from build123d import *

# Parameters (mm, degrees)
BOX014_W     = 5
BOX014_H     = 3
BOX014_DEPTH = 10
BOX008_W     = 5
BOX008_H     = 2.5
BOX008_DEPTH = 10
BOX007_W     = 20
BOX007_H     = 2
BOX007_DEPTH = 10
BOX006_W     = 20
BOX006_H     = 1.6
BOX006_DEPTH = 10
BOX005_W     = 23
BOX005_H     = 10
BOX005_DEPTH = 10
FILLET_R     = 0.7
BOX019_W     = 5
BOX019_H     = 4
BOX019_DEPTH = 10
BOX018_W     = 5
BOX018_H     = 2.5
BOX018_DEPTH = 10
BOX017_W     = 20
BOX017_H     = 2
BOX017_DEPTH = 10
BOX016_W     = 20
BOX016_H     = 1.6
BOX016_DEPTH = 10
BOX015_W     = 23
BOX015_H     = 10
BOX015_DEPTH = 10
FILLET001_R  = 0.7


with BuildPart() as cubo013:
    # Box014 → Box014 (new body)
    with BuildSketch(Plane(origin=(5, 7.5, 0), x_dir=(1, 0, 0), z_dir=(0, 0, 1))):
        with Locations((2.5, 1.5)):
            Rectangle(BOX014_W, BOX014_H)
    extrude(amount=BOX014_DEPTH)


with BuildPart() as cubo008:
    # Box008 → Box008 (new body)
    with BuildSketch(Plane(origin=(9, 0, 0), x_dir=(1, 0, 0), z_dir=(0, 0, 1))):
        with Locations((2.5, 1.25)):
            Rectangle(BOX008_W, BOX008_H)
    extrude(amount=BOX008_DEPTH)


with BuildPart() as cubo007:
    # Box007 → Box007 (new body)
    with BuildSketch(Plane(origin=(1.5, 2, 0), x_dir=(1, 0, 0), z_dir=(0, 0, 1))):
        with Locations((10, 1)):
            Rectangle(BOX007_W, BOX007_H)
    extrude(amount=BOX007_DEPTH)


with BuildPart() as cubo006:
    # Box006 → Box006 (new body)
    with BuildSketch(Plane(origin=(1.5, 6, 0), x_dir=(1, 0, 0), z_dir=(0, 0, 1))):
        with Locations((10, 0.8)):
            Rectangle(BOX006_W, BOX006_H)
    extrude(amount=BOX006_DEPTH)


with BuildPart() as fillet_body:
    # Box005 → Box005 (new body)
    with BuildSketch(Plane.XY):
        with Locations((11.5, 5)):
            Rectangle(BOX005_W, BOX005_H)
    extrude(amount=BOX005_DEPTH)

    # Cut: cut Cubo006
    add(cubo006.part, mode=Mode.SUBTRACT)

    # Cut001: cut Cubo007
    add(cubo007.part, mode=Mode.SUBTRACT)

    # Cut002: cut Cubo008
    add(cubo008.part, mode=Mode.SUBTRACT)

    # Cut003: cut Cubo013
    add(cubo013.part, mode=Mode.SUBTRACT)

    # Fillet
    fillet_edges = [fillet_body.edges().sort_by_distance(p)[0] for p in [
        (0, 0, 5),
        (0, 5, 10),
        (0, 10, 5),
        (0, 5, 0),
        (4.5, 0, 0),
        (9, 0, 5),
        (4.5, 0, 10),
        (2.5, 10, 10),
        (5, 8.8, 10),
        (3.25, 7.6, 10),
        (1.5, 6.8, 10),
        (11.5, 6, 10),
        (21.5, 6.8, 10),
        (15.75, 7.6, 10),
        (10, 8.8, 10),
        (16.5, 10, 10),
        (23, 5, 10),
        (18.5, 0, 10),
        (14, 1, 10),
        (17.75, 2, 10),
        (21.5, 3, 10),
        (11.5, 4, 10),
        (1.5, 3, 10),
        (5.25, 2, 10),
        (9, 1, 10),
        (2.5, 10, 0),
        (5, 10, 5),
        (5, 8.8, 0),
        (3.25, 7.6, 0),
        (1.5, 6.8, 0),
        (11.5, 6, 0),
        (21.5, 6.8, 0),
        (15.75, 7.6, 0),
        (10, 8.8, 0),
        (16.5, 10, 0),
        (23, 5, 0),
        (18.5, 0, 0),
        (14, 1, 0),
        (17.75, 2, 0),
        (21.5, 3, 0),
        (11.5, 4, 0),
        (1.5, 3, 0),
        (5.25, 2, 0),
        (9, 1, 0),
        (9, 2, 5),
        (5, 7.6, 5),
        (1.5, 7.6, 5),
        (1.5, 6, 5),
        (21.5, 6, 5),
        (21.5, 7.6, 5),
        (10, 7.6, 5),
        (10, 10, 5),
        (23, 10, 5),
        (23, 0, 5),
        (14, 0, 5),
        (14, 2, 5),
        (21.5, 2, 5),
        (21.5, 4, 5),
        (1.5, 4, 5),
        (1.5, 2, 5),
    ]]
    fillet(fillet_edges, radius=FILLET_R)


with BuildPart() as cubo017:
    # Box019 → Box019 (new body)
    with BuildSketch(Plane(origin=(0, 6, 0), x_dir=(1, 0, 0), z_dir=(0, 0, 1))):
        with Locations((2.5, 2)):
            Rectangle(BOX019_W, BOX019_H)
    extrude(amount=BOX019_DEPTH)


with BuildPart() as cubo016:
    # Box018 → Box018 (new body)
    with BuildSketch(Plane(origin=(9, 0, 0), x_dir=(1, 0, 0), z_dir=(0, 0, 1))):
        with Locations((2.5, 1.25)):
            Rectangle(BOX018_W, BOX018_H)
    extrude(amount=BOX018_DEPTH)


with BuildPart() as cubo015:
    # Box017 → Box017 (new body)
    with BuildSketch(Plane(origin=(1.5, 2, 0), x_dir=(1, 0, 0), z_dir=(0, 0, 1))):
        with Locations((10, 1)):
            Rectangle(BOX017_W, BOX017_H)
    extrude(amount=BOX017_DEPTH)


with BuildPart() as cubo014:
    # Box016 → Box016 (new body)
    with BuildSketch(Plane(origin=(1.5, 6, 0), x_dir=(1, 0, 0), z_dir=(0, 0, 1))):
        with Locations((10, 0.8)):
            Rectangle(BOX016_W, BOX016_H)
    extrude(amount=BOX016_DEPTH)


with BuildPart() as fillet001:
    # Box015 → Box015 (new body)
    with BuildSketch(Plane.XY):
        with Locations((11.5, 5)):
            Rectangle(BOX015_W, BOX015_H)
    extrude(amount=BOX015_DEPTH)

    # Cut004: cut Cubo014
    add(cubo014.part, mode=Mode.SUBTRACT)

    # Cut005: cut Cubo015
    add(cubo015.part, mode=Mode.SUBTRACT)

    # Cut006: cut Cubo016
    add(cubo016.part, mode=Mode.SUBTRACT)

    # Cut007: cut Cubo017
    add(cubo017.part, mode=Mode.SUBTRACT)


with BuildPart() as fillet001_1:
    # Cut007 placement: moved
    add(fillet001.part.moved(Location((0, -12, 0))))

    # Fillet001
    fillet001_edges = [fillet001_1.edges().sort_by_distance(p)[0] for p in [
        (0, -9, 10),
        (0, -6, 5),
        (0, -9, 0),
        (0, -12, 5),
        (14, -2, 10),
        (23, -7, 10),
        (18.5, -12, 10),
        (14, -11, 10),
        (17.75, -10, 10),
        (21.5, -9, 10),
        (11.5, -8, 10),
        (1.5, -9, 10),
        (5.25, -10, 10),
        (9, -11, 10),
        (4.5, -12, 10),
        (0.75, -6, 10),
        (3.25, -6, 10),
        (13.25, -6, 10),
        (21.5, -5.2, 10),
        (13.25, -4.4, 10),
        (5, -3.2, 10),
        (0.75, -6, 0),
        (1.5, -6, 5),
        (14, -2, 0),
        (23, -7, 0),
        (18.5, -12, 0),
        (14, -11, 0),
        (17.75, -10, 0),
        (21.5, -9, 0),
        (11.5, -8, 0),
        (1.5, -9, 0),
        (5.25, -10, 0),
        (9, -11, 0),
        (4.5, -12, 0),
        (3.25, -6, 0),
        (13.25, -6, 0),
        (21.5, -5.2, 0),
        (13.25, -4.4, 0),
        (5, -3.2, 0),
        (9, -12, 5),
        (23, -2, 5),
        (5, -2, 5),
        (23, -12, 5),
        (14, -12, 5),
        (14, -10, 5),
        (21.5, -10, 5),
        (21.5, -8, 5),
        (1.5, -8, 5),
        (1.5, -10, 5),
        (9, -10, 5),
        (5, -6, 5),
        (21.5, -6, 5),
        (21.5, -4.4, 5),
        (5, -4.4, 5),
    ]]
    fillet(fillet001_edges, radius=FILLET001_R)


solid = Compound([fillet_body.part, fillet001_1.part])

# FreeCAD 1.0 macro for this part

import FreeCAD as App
import Part
import Sketcher
from FreeCAD import Vector
Q = App.Units.Quantity


def add_polygon(sketch, points):
    """Adds a closed chain of lines whose ends are joined by coincident constraints."""
    first, n = sketch.GeometryCount, len(points)
    for a, b in zip(points, points[1:] + points[:1]):
        sketch.addGeometry(Part.LineSegment(App.Vector(*a, 0), App.Vector(*b, 0)), False)
    for i in range(n):
        sketch.addConstraint(Sketcher.Constraint("Coincident", first + i, 2, first + (i + 1) % n, 1))

doc = App.newDocument("Part")
body = doc.addObject("PartDesign::Body", "Body")

sketch1 = body.newObject("Sketcher::SketchObject", "Sketch")
sketch1.AttachmentSupport = (doc.getObject("XY_Plane"), [""])
sketch1.MapMode = "FlatFace"
add_polygon(sketch1, [(5, 10.5), (5, 7.5), (10, 7.5), (10, 10.5)])
sketch1.addConstraint(Sketcher.Constraint("Vertical", 0))
sketch1.addConstraint(Sketcher.Constraint("Horizontal", 1))
sketch1.addConstraint(Sketcher.Constraint("Vertical", 2))
sketch1.addConstraint(Sketcher.Constraint("Horizontal", 3))
sketch1.addConstraint(Sketcher.Constraint("DistanceX", 1, 1, 1, 2, Q("5 mm")))
sketch1.addConstraint(Sketcher.Constraint("DistanceY", 0, 2, 0, 1, Q("3 mm")))
sketch1.addConstraint(Sketcher.Constraint("DistanceX", -1, 1, 0, 2, Q("5 mm")))
sketch1.addConstraint(Sketcher.Constraint("DistanceY", -1, 1, 0, 2, Q("7.5 mm")))
pad1 = body.newObject("PartDesign::Pad", "Pad")
pad1.Profile = sketch1
pad1.Length = 10
body2 = doc.addObject("PartDesign::Body", "Body001")

sketch2 = body2.newObject("Sketcher::SketchObject", "Sketch001")
sketch2.AttachmentSupport = (doc.getObject("XY_Plane001"), [""])
sketch2.MapMode = "FlatFace"
add_polygon(sketch2, [(9, 2.5), (9, 0), (14, 0), (14, 2.5)])
sketch2.addConstraint(Sketcher.Constraint("Vertical", 0))
sketch2.addConstraint(Sketcher.Constraint("Horizontal", 1))
sketch2.addConstraint(Sketcher.Constraint("Vertical", 2))
sketch2.addConstraint(Sketcher.Constraint("Horizontal", 3))
sketch2.addConstraint(Sketcher.Constraint("PointOnObject", 0, 2, -1))
sketch2.addConstraint(Sketcher.Constraint("DistanceX", 1, 1, 1, 2, Q("5 mm")))
sketch2.addConstraint(Sketcher.Constraint("DistanceY", 0, 2, 0, 1, Q("2.5 mm")))
sketch2.addConstraint(Sketcher.Constraint("DistanceX", -1, 1, 0, 2, Q("9 mm")))
pad2 = body2.newObject("PartDesign::Pad", "Pad001")
pad2.Profile = sketch2
pad2.Length = 10
body3 = doc.addObject("PartDesign::Body", "Body002")

sketch3 = body3.newObject("Sketcher::SketchObject", "Sketch002")
sketch3.AttachmentSupport = (doc.getObject("XY_Plane002"), [""])
sketch3.MapMode = "FlatFace"
add_polygon(sketch3, [(1.5, 4), (1.5, 2), (21.5, 2), (21.5, 4)])
sketch3.addConstraint(Sketcher.Constraint("Vertical", 0))
sketch3.addConstraint(Sketcher.Constraint("Horizontal", 1))
sketch3.addConstraint(Sketcher.Constraint("Vertical", 2))
sketch3.addConstraint(Sketcher.Constraint("Horizontal", 3))
sketch3.addConstraint(Sketcher.Constraint("DistanceX", 1, 1, 1, 2, Q("20 mm")))
sketch3.addConstraint(Sketcher.Constraint("DistanceY", 0, 2, 0, 1, Q("2 mm")))
sketch3.addConstraint(Sketcher.Constraint("DistanceY", -1, 1, 0, 2, Q("2 mm")))
sketch3.addConstraint(Sketcher.Constraint("DistanceX", -1, 1, 0, 2, Q("1.5 mm")))
pad3 = body3.newObject("PartDesign::Pad", "Pad002")
pad3.Profile = sketch3
pad3.Length = 10
body4 = doc.addObject("PartDesign::Body", "Body003")

sketch4 = body4.newObject("Sketcher::SketchObject", "Sketch003")
sketch4.AttachmentSupport = (doc.getObject("XY_Plane003"), [""])
sketch4.MapMode = "FlatFace"
add_polygon(sketch4, [(1.5, 7.6), (1.5, 6), (21.5, 6), (21.5, 7.6)])
sketch4.addConstraint(Sketcher.Constraint("Vertical", 0))
sketch4.addConstraint(Sketcher.Constraint("Horizontal", 1))
sketch4.addConstraint(Sketcher.Constraint("Vertical", 2))
sketch4.addConstraint(Sketcher.Constraint("Horizontal", 3))
sketch4.addConstraint(Sketcher.Constraint("DistanceX", 1, 1, 1, 2, Q("20 mm")))
sketch4.addConstraint(Sketcher.Constraint("DistanceY", 0, 2, 0, 1, Q("1.6 mm")))
sketch4.addConstraint(Sketcher.Constraint("DistanceY", -1, 1, 0, 2, Q("6 mm")))
sketch4.addConstraint(Sketcher.Constraint("DistanceX", -1, 1, 0, 2, Q("1.5 mm")))
pad4 = body4.newObject("PartDesign::Pad", "Pad003")
pad4.Profile = sketch4
pad4.Length = 10
body5 = doc.addObject("PartDesign::Body", "Body004")

sketch5 = body5.newObject("Sketcher::SketchObject", "Sketch004")
sketch5.AttachmentSupport = (doc.getObject("XY_Plane004"), [""])
sketch5.MapMode = "FlatFace"
add_polygon(sketch5, [(0, 10), (0, 0), (23, 0), (23, 10)])
sketch5.addConstraint(Sketcher.Constraint("Vertical", 0))
sketch5.addConstraint(Sketcher.Constraint("Horizontal", 1))
sketch5.addConstraint(Sketcher.Constraint("Vertical", 2))
sketch5.addConstraint(Sketcher.Constraint("Horizontal", 3))
sketch5.addConstraint(Sketcher.Constraint("Coincident", 0, 2, -1, 1))
sketch5.addConstraint(Sketcher.Constraint("DistanceX", 1, 1, 1, 2, Q("23 mm")))
sketch5.addConstraint(Sketcher.Constraint("DistanceY", 0, 2, 0, 1, Q("10 mm")))
pad5 = body5.newObject("PartDesign::Pad", "Pad004")
pad5.Profile = sketch5
pad5.Length = 10
doc.recompute()

boolean = body5.newObject("PartDesign::Boolean", "Boolean")
boolean.Type = "Cut"
boolean.addObjects([body4])
doc.recompute()

boolean2 = body5.newObject("PartDesign::Boolean", "Boolean001")
boolean2.Type = "Cut"
boolean2.addObjects([body3])
doc.recompute()

boolean3 = body5.newObject("PartDesign::Boolean", "Boolean002")
boolean3.Type = "Cut"
boolean3.addObjects([body2])
doc.recompute()

boolean4 = body5.newObject("PartDesign::Boolean", "Boolean003")
boolean4.Type = "Cut"
boolean4.addObjects([body])
doc.recompute()

fillet = body5.newObject("PartDesign::Fillet", "Fillet")
fillet.Base = (boolean4, ["Edge1"])
fillet.UseAllEdges = True
fillet.Radius = 0.7
body6 = doc.addObject("PartDesign::Body", "Body005")

sketch6 = body6.newObject("Sketcher::SketchObject", "Sketch005")
sketch6.AttachmentSupport = (doc.getObject("XY_Plane005"), [""])
sketch6.MapMode = "FlatFace"
add_polygon(sketch6, [(0, 10), (0, 6), (5, 6), (5, 10)])
sketch6.addConstraint(Sketcher.Constraint("Vertical", 0))
sketch6.addConstraint(Sketcher.Constraint("Horizontal", 1))
sketch6.addConstraint(Sketcher.Constraint("Vertical", 2))
sketch6.addConstraint(Sketcher.Constraint("Horizontal", 3))
sketch6.addConstraint(Sketcher.Constraint("PointOnObject", 0, 2, -2))
sketch6.addConstraint(Sketcher.Constraint("DistanceX", 1, 1, 1, 2, Q("5 mm")))
sketch6.addConstraint(Sketcher.Constraint("DistanceY", 0, 2, 0, 1, Q("4 mm")))
sketch6.addConstraint(Sketcher.Constraint("DistanceY", -1, 1, 0, 2, Q("6 mm")))
pad6 = body6.newObject("PartDesign::Pad", "Pad005")
pad6.Profile = sketch6
pad6.Length = 10
body7 = doc.addObject("PartDesign::Body", "Body006")

sketch7 = body7.newObject("Sketcher::SketchObject", "Sketch006")
sketch7.AttachmentSupport = (doc.getObject("XY_Plane006"), [""])
sketch7.MapMode = "FlatFace"
add_polygon(sketch7, [(9, 2.5), (9, 0), (14, 0), (14, 2.5)])
sketch7.addConstraint(Sketcher.Constraint("Vertical", 0))
sketch7.addConstraint(Sketcher.Constraint("Horizontal", 1))
sketch7.addConstraint(Sketcher.Constraint("Vertical", 2))
sketch7.addConstraint(Sketcher.Constraint("Horizontal", 3))
sketch7.addConstraint(Sketcher.Constraint("PointOnObject", 0, 2, -1))
sketch7.addConstraint(Sketcher.Constraint("DistanceX", 1, 1, 1, 2, Q("5 mm")))
sketch7.addConstraint(Sketcher.Constraint("DistanceY", 0, 2, 0, 1, Q("2.5 mm")))
sketch7.addConstraint(Sketcher.Constraint("DistanceX", -1, 1, 0, 2, Q("9 mm")))
pad7 = body7.newObject("PartDesign::Pad", "Pad006")
pad7.Profile = sketch7
pad7.Length = 10
body8 = doc.addObject("PartDesign::Body", "Body007")

sketch8 = body8.newObject("Sketcher::SketchObject", "Sketch007")
sketch8.AttachmentSupport = (doc.getObject("XY_Plane007"), [""])
sketch8.MapMode = "FlatFace"
add_polygon(sketch8, [(1.5, 4), (1.5, 2), (21.5, 2), (21.5, 4)])
sketch8.addConstraint(Sketcher.Constraint("Vertical", 0))
sketch8.addConstraint(Sketcher.Constraint("Horizontal", 1))
sketch8.addConstraint(Sketcher.Constraint("Vertical", 2))
sketch8.addConstraint(Sketcher.Constraint("Horizontal", 3))
sketch8.addConstraint(Sketcher.Constraint("DistanceX", 1, 1, 1, 2, Q("20 mm")))
sketch8.addConstraint(Sketcher.Constraint("DistanceY", 0, 2, 0, 1, Q("2 mm")))
sketch8.addConstraint(Sketcher.Constraint("DistanceY", -1, 1, 0, 2, Q("2 mm")))
sketch8.addConstraint(Sketcher.Constraint("DistanceX", -1, 1, 0, 2, Q("1.5 mm")))
pad8 = body8.newObject("PartDesign::Pad", "Pad007")
pad8.Profile = sketch8
pad8.Length = 10
body9 = doc.addObject("PartDesign::Body", "Body008")

sketch9 = body9.newObject("Sketcher::SketchObject", "Sketch008")
sketch9.AttachmentSupport = (doc.getObject("XY_Plane008"), [""])
sketch9.MapMode = "FlatFace"
add_polygon(sketch9, [(1.5, 7.6), (1.5, 6), (21.5, 6), (21.5, 7.6)])
sketch9.addConstraint(Sketcher.Constraint("Vertical", 0))
sketch9.addConstraint(Sketcher.Constraint("Horizontal", 1))
sketch9.addConstraint(Sketcher.Constraint("Vertical", 2))
sketch9.addConstraint(Sketcher.Constraint("Horizontal", 3))
sketch9.addConstraint(Sketcher.Constraint("DistanceX", 1, 1, 1, 2, Q("20 mm")))
sketch9.addConstraint(Sketcher.Constraint("DistanceY", 0, 2, 0, 1, Q("1.6 mm")))
sketch9.addConstraint(Sketcher.Constraint("DistanceY", -1, 1, 0, 2, Q("6 mm")))
sketch9.addConstraint(Sketcher.Constraint("DistanceX", -1, 1, 0, 2, Q("1.5 mm")))
pad9 = body9.newObject("PartDesign::Pad", "Pad008")
pad9.Profile = sketch9
pad9.Length = 10
body10 = doc.addObject("PartDesign::Body", "Body009")

sketch10 = body10.newObject("Sketcher::SketchObject", "Sketch009")
sketch10.AttachmentSupport = (doc.getObject("XY_Plane009"), [""])
sketch10.MapMode = "FlatFace"
add_polygon(sketch10, [(0, 10), (0, 0), (23, 0), (23, 10)])
sketch10.addConstraint(Sketcher.Constraint("Vertical", 0))
sketch10.addConstraint(Sketcher.Constraint("Horizontal", 1))
sketch10.addConstraint(Sketcher.Constraint("Vertical", 2))
sketch10.addConstraint(Sketcher.Constraint("Horizontal", 3))
sketch10.addConstraint(Sketcher.Constraint("Coincident", 0, 2, -1, 1))
sketch10.addConstraint(Sketcher.Constraint("DistanceX", 1, 1, 1, 2, Q("23 mm")))
sketch10.addConstraint(Sketcher.Constraint("DistanceY", 0, 2, 0, 1, Q("10 mm")))
pad10 = body10.newObject("PartDesign::Pad", "Pad009")
pad10.Profile = sketch10
pad10.Length = 10
doc.recompute()

boolean5 = body10.newObject("PartDesign::Boolean", "Boolean004")
boolean5.Type = "Cut"
boolean5.addObjects([body9])
doc.recompute()

boolean6 = body10.newObject("PartDesign::Boolean", "Boolean005")
boolean6.Type = "Cut"
boolean6.addObjects([body8])
doc.recompute()

boolean7 = body10.newObject("PartDesign::Boolean", "Boolean006")
boolean7.Type = "Cut"
boolean7.addObjects([body7])
doc.recompute()

boolean8 = body10.newObject("PartDesign::Boolean", "Boolean007")
boolean8.Type = "Cut"
boolean8.addObjects([body6])
body11 = doc.addObject("PartDesign::Body", "Body010")
doc.recompute()

body10.Placement = App.Placement(Vector(0, -12, 0), App.Rotation(Vector(0, 0, 1), 0))
boolean9 = body11.newObject("PartDesign::Boolean", "Boolean008")
boolean9.Type = "Fuse"
boolean9.addObjects([body10])
doc.recompute()

fillet2 = body11.newObject("PartDesign::Fillet", "Fillet001")
fillet2.Base = (boolean9, ["Edge1"])
fillet2.UseAllEdges = True
fillet2.Radius = 0.7

doc.recompute()
